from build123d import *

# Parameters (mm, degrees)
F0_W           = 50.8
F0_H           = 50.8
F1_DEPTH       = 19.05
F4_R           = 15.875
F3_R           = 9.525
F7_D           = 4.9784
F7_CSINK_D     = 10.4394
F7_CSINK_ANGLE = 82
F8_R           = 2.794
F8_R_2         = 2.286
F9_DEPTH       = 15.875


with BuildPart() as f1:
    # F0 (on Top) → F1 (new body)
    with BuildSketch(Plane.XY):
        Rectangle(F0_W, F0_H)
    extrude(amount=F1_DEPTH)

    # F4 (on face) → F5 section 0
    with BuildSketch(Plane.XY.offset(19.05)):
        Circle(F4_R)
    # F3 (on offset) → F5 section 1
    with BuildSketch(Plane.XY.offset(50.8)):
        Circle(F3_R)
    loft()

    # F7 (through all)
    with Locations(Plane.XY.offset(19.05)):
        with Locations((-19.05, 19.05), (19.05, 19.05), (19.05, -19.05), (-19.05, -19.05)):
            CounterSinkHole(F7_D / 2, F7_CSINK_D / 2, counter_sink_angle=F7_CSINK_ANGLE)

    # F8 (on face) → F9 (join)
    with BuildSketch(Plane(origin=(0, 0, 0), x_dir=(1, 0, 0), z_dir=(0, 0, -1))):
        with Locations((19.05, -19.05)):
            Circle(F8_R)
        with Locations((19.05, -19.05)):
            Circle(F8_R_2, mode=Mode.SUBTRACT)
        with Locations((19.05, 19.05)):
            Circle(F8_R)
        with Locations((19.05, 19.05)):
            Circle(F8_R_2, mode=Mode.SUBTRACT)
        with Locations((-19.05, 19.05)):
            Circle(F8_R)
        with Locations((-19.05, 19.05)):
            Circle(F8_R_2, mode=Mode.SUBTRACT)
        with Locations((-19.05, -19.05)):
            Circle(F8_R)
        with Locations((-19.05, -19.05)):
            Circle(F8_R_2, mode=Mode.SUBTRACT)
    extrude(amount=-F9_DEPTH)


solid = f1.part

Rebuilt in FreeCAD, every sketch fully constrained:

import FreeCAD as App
import Part
import Sketcher

V = App.Vector
Q = App.Units.Quantity

doc = App.newDocument("Part")
params = doc.addObject("Spreadsheet::Sheet", "Params")
for row, (alias, value) in enumerate([
    ("sketch1_width", "2 in"),
    ("pad1_length", "0.75 in"),
    ("sketch2_diameter", "1.25 in"),
    ("sketch3_diameter", "0.75 in"),
    ("sketch4_diameter", "0.196 in"),
    ("hole_diameter", "0.196 in"),
    ("hole_csink_diameter", "0.411 in"),
    ("sketch5_diameter", "0.22 in"),
    ("sketch5_diameter2", "0.18 in"),
    ("pad2_length", "0.625 in"),
], start=1):
    params.set(f"A{row}", alias)
    params.set(f"B{row}", "=" + value)
    params.setAlias(f"B{row}", alias)

body = doc.addObject("PartDesign::Body", "Body")

sketch1 = body.newObject("Sketcher::SketchObject", "Sketch")
sketch1.AttachmentSupport = (doc.getObject("XY_Plane"), [""])
sketch1.MapMode = "FlatFace"
sketch1.addGeometry(Part.LineSegment(V(-25.4, 25.4, 0), V(-25.4, -25.4, 0)), False)
sketch1.addGeometry(Part.LineSegment(V(-25.4, -25.4, 0), V(25.4, -25.4, 0)), False)
sketch1.addGeometry(Part.LineSegment(V(25.4, -25.4, 0), V(25.4, 25.4, 0)), False)
sketch1.addGeometry(Part.LineSegment(V(25.4, 25.4, 0), V(-25.4, 25.4, 0)), False)
sketch1.addConstraint(Sketcher.Constraint("Coincident", 0, 2, 1, 1))
sketch1.addConstraint(Sketcher.Constraint("Coincident", 1, 2, 2, 1))
sketch1.addConstraint(Sketcher.Constraint("Coincident", 2, 2, 3, 1))
sketch1.addConstraint(Sketcher.Constraint("Coincident", 3, 2, 0, 1))
sketch1.addConstraint(Sketcher.Constraint("Vertical", 0))
sketch1.addConstraint(Sketcher.Constraint("Horizontal", 1))
sketch1.addConstraint(Sketcher.Constraint("Vertical", 2))
sketch1.addConstraint(Sketcher.Constraint("Horizontal", 3))
sketch1.addConstraint(Sketcher.Constraint("Symmetric", 0, 2, 2, 2, -1, 1))
sketch1.addConstraint(Sketcher.Constraint("Equal", 3, 0))
sketch1.addConstraint(Sketcher.Constraint("DistanceX", 1, 1, 1, 2, Q("2 in")))
sketch1.setExpression("Constraints[10]", "Params.sketch1_width")
pad1 = body.newObject("PartDesign::Pad", "Pad")
pad1.Profile = sketch1
pad1.setExpression("Length", "Params.pad1_length")

sketch2 = body.newObject("Sketcher::SketchObject", "Sketch001")
sketch2.AttachmentSupport = (doc.getObject("XY_Plane"), [""])
sketch2.MapMode = "FlatFace"
sketch2.AttachmentOffset = App.Placement(V(0, 0, 0.75 * 25.4), App.Rotation())
sketch2.addGeometry(Part.Circle(V(0, 0, 0), V(0, 0, 1), 15.875), False)
sketch2.addConstraint(Sketcher.Constraint("Coincident", 0, 3, -1, 1))
sketch2.addConstraint(Sketcher.Constraint("Diameter", 0, Q("1.25 in")))
sketch2.setExpression("Constraints[1]", "Params.sketch2_diameter")

sketch3 = body.newObject("Sketcher::SketchObject", "Sketch002")
sketch3.AttachmentSupport = (doc.getObject("XY_Plane"), [""])
sketch3.MapMode = "FlatFace"
sketch3.AttachmentOffset = App.Placement(V(0, 0, 2 * 25.4), App.Rotation())
sketch3.addGeometry(Part.Circle(V(0, 0, 0), V(0, 0, 1), 9.525), False)
sketch3.addConstraint(Sketcher.Constraint("Coincident", 0, 3, -1, 1))
sketch3.addConstraint(Sketcher.Constraint("Diameter", 0, Q("0.75 in")))
sketch3.setExpression("Constraints[1]", "Params.sketch3_diameter")

additiveloft = body.newObject("PartDesign::AdditiveLoft", "AdditiveLoft")
additiveloft.Profile = sketch2
additiveloft.Sections = [sketch3]

sketch4 = body.newObject("Sketcher::SketchObject", "Sketch003")
sketch4.AttachmentSupport = (doc.getObject("XY_Plane"), [""])
sketch4.MapMode = "FlatFace"
sketch4.AttachmentOffset = App.Placement(V(0, 0, 0.75 * 25.4), App.Rotation())
sketch4.addGeometry(Part.Circle(V(-19.05, 19.05, 0), V(0, 0, 1), 2.4892), False)
sketch4.addGeometry(Part.Circle(V(19.05, 19.05, 0), V(0, 0, 1), 2.4892), False)
sketch4.addGeometry(Part.Circle(V(19.05, -19.05, 0), V(0, 0, 1), 2.4892), False)
sketch4.addGeometry(Part.Circle(V(-19.05, -19.05, 0), V(0, 0, 1), 2.4892), False)
sketch4.addConstraint(Sketcher.Constraint("Equal", 0, 1))
sketch4.addConstraint(Sketcher.Constraint("Equal", 1, 2))
sketch4.addConstraint(Sketcher.Constraint("Equal", 2, 3))
sketch4.addConstraint(Sketcher.Constraint("Symmetric", 0, 3, 2, 3, -1, 1))
sketch4.addConstraint(Sketcher.Constraint("Symmetric", 1, 3, 3, 3, -1, 1))
sketch4.addConstraint(Sketcher.Constraint("Symmetric", 0, 3, 1, 3, -2))
sketch4.addConstraint(Sketcher.Constraint("Diameter", 0, Q("0.196 in")))
sketch4.addConstraint(Sketcher.Constraint("DistanceX", 0, 3, 1, 3, Q("1.5 in")))
sketch4.addConstraint(Sketcher.Constraint("DistanceY", 2, 3, 1, 3, Q("1.5 in")))
sketch4.setExpression("Constraints[6]", "Params.sketch4_diameter")
doc.recompute()
hole = body.newObject("PartDesign::Hole", "Hole")
hole.Profile = sketch4
hole.ThreadType = "None"
hole.setExpression("Diameter", "Params.hole_diameter")
hole.DepthType = "ThroughAll"
hole.HoleCutType = "Countersink"
hole.setExpression("HoleCutDiameter", "Params.hole_csink_diameter")
hole.HoleCutCountersinkAngle = 82

sketch5 = body.newObject("Sketcher::SketchObject", "Sketch004")
sketch5.AttachmentSupport = (doc.getObject("XY_Plane"), [""])
sketch5.MapMode = "FlatFace"
sketch5.addGeometry(Part.Circle(V(19.05, 19.05, 0), V(0, 0, 1), 2.794), False)
sketch5.addGeometry(Part.Circle(V(19.05, 19.05, 0), V(0, 0, 1), 2.286), False)
sketch5.addGeometry(Part.Circle(V(19.05, -19.05, 0), V(0, 0, 1), 2.794), False)
sketch5.addGeometry(Part.Circle(V(19.05, -19.05, 0), V(0, 0, 1), 2.286), False)
sketch5.addGeometry(Part.Circle(V(-19.05, -19.05, 0), V(0, 0, 1), 2.794), False)
sketch5.addGeometry(Part.Circle(V(-19.05, -19.05, 0), V(0, 0, 1), 2.286), False)
sketch5.addGeometry(Part.Circle(V(-19.05, 19.05, 0), V(0, 0, 1), 2.794), False)
sketch5.addGeometry(Part.Circle(V(-19.05, 19.05, 0), V(0, 0, 1), 2.286), False)
sketch5.addConstraint(Sketcher.Constraint("Coincident", 1, 3, 0, 3))
sketch5.addConstraint(Sketcher.Constraint("Coincident", 3, 3, 2, 3))
sketch5.addConstraint(Sketcher.Constraint("Coincident", 5, 3, 4, 3))
sketch5.addConstraint(Sketcher.Constraint("Coincident", 7, 3, 6, 3))
sketch5.addConstraint(Sketcher.Constraint("Equal", 0, 2))
sketch5.addConstraint(Sketcher.Constraint("Equal", 1, 3))
sketch5.addConstraint(Sketcher.Constraint("Equal", 2, 4))
sketch5.addConstraint(Sketcher.Constraint("Equal", 3, 5))
sketch5.addConstraint(Sketcher.Constraint("Equal", 4, 6))
sketch5.addConstraint(Sketcher.Constraint("Equal", 5, 7))
sketch5.addConstraint(Sketcher.Constraint("Symmetric", 0, 3, 4, 3, -1, 1))
sketch5.addConstraint(Sketcher.Constraint("Symmetric", 2, 3, 6, 3, -1, 1))
sketch5.addConstraint(Sketcher.Constraint("Symmetric", 2, 3, 4, 3, -2))
sketch5.addConstraint(Sketcher.Constraint("Diameter", 0, Q("0.22 in")))
sketch5.addConstraint(Sketcher.Constraint("Diameter", 1, Q("0.18 in")))
sketch5.addConstraint(Sketcher.Constraint("DistanceY", 2, 3, 0, 3, Q("1.5 in")))
sketch5.addConstraint(Sketcher.Constraint("DistanceX", 4, 3, 2, 3, Q("1.5 in")))
sketch5.setExpression("Constraints[13]", "Params.sketch5_diameter")
sketch5.setExpression("Constraints[14]", "Params.sketch5_diameter2")
pad2 = body.newObject("PartDesign::Pad", "Pad001")
pad2.Profile = sketch5
pad2.setExpression("Length", "Params.pad2_length")

doc.recompute()
